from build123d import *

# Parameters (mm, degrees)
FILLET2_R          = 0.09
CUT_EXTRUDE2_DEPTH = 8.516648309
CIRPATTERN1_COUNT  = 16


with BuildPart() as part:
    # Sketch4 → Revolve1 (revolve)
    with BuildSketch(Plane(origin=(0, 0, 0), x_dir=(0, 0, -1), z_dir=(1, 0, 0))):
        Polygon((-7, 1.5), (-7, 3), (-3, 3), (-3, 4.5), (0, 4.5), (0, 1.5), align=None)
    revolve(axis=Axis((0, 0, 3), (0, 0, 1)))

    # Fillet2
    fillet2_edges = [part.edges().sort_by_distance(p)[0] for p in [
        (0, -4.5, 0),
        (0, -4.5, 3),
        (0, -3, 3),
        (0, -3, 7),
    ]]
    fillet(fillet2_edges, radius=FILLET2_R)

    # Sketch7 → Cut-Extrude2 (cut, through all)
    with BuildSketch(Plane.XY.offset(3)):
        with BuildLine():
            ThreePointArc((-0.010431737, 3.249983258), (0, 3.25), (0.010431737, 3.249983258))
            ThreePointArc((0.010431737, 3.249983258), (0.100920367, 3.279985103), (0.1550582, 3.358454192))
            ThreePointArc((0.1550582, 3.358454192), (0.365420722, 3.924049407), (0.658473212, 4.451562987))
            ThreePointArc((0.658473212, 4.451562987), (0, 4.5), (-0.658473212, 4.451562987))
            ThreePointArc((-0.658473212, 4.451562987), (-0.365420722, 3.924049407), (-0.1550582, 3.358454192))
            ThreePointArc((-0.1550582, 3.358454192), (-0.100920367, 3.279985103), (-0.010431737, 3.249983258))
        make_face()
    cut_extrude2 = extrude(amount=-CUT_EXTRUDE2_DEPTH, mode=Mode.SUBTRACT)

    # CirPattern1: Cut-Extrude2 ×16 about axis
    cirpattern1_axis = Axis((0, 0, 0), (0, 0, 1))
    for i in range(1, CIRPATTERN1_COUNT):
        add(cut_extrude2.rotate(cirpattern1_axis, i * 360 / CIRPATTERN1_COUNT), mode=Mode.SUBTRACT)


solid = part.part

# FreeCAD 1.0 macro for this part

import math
import FreeCAD as App
import Part
import Sketcher

V = App.Vector


def edges_at(feature, points):
    """Names of the edges that pass closest to the given points."""
    edges = feature.Shape.Edges
    near = lambda p: min(range(len(edges)), key=lambda i: edges[i].distToShape(Part.Vertex(*p))[0])
    return sorted({f"Edge{near(p) + 1}" for p in points})

doc = App.newDocument("Part")
body = doc.addObject("PartDesign::Body", "Body")

# Sketch on YZ plane
sketch1 = body.newObject("Sketcher::SketchObject", "Sketch")
sketch1.AttachmentSupport = (doc.getObject("YZ_Plane"), [""])
sketch1.MapMode = "FlatFace"
sketch1.addGeometry([
    Part.LineSegment(V(3, 7, 0), V(1.5, 7, 0)),  # 0
    Part.LineSegment(V(1.5, 7, 0), V(1.5, 0, 0)),  # 1
    Part.LineSegment(V(1.5, 0, 0), V(4.5, 0, 0)),  # 2
    Part.LineSegment(V(4.5, 0, 0), V(4.5, 3, 0)),  # 3
    Part.LineSegment(V(4.5, 3, 0), V(3, 3, 0)),  # 4
    Part.LineSegment(V(3, 3, 0), V(3, 7, 0)),  # 5
], False)
sketch1.addConstraint([
    Sketcher.Constraint("Coincident", 0, 2, 1, 1),
    Sketcher.Constraint("Coincident", 1, 2, 2, 1),
    Sketcher.Constraint("Coincident", 2, 2, 3, 1),
    Sketcher.Constraint("Coincident", 3, 2, 4, 1),
    Sketcher.Constraint("Coincident", 4, 2, 5, 1),
    Sketcher.Constraint("Coincident", 5, 2, 0, 1),
    Sketcher.Constraint("Horizontal", 0),
    Sketcher.Constraint("Vertical", 1),
    Sketcher.Constraint("Horizontal", 2),
    Sketcher.Constraint("Vertical", 3),
    Sketcher.Constraint("Horizontal", 4),
    Sketcher.Constraint("Vertical", 5),
    Sketcher.Constraint("PointOnObject", 1, 2, -1),
    Sketcher.Constraint("Equal", 0, 4),
    Sketcher.Constraint("Equal", 2, 3),
    Sketcher.Constraint("DistanceX", 2, 1, 2, 2, 3.0),
    Sketcher.Constraint("DistanceY", 1, 2, 1, 1, 7.0),
    Sketcher.Constraint("DistanceX", -1, 1, 4, 2, 3.0),
])
revolution = body.newObject("PartDesign::Revolution", "Revolution")
revolution.Profile = sketch1
revolution.ReferenceAxis = (sketch1, ["V_Axis"])
revolution.Angle = 360
doc.recompute()

fillet = body.newObject("PartDesign::Fillet", "Fillet")
fillet.Base = (revolution, edges_at(revolution, [
    (0, -4.5, 0),
    (0, -4.5, 3),
    (0, -3, 3),
    (0, -3, 7),
]))
fillet.Radius = 0.09

# Sketch on XY plane
sketch2 = body.newObject("Sketcher::SketchObject", "Sketch001")
sketch2.AttachmentSupport = (doc.getObject("XY_Plane"), [""])
sketch2.MapMode = "FlatFace"
sketch2.AttachmentOffset = App.Placement(V(0, 0, 3), App.Rotation())
sketch2.addGeometry([
    Part.ArcOfCircle(Part.Circle(V(0, 0.000047, 0), V(0, 0, 1), 3.249953), math.radians(89.816091), math.radians(90.183909)),  # 0
    Part.ArcOfCircle(Part.Circle(V(0.010913, 3.399993, 0), V(0, 0, 1), 0.150011), math.radians(-90.183906), math.radians(-16.075748)),  # 1
    Part.ArcOfCircle(Part.Circle(V(3.998644, 2.250822, 0), V(0, 0, 1), 4), math.radians(146.620285), math.radians(163.924252)),  # 2
    Part.ArcOfCircle(Part.Circle(V(0, 0, 0), V(0, 0, 1), 4.5), math.radians(81.585848), math.radians(98.414152)),  # 3
    Part.ArcOfCircle(Part.Circle(V(-3.998644, 2.250822, 0), V(0, 0, 1), 4), math.radians(16.075748), math.radians(33.379715)),  # 4
    Part.ArcOfCircle(Part.Circle(V(-0.010913, 3.399993, 0), V(0, 0, 1), 0.150011), math.radians(-163.924252), math.radians(-89.816094)),  # 5
], False)
sketch2.addConstraint([
    Sketcher.Constraint("Coincident", 0, 1, 1, 1),
    Sketcher.Constraint("Coincident", 1, 2, 2, 2),
    Sketcher.Constraint("Coincident", 2, 1, 3, 1),
    Sketcher.Constraint("Coincident", 3, 2, 4, 2),
    Sketcher.Constraint("Coincident", 4, 1, 5, 1),
    Sketcher.Constraint("Coincident", 5, 2, 0, 2),
    Sketcher.Constraint("Coincident", 3, 3, -1, 1),
    Sketcher.Constraint("PointOnObject", 0, 3, -2),
    Sketcher.Constraint("Radius", 2, 4.0),
    Sketcher.Constraint("Radius", 4, 4.0),
    Sketcher.Constraint("Radius", 3, 4.5),
    Sketcher.Constraint("Radius", 1, 0.150011),
    Sketcher.Constraint("Radius", 5, 0.150011),
    Sketcher.Constraint("Radius", 0, 3.249953),
    Sketcher.Constraint("DistanceX", -1, 1, 0, 1, 0.010432),
    Sketcher.Constraint("DistanceX", -1, 1, 1, 2, 0.155058),
    Sketcher.Constraint("DistanceX", 4, 1, -1, 1, 0.155058),
    Sketcher.Constraint("DistanceX", 5, 2, -1, 1, 0.010432),
    Sketcher.Constraint("DistanceX", 1, 3, 2, 3, 3.987731),
    Sketcher.Constraint("DistanceY", 4, 3, 1, 3, 1.149171),
    Sketcher.Constraint("DistanceX", 4, 3, 2, 3, 7.997288),
    Sketcher.Constraint("DistanceX", 0, 1, 1, 3, 0.000481),
    Sketcher.Constraint("DistanceY", 1, 2, 2, 1, 1.093109),
])
pocket1 = body.newObject("PartDesign::Pocket", "Pocket")
pocket1.Profile = sketch2
pocket1.Type = "ThroughAll"
doc.recompute()

polarpattern = body.newObject("PartDesign::PolarPattern", "PolarPattern")
polarpattern.Originals = [pocket1]
polarpattern.Axis = (doc.getObject("Z_Axis"), [""])
polarpattern.Angle = 360
polarpattern.Occurrences = 16
body.Tip = polarpattern

doc.recompute()
